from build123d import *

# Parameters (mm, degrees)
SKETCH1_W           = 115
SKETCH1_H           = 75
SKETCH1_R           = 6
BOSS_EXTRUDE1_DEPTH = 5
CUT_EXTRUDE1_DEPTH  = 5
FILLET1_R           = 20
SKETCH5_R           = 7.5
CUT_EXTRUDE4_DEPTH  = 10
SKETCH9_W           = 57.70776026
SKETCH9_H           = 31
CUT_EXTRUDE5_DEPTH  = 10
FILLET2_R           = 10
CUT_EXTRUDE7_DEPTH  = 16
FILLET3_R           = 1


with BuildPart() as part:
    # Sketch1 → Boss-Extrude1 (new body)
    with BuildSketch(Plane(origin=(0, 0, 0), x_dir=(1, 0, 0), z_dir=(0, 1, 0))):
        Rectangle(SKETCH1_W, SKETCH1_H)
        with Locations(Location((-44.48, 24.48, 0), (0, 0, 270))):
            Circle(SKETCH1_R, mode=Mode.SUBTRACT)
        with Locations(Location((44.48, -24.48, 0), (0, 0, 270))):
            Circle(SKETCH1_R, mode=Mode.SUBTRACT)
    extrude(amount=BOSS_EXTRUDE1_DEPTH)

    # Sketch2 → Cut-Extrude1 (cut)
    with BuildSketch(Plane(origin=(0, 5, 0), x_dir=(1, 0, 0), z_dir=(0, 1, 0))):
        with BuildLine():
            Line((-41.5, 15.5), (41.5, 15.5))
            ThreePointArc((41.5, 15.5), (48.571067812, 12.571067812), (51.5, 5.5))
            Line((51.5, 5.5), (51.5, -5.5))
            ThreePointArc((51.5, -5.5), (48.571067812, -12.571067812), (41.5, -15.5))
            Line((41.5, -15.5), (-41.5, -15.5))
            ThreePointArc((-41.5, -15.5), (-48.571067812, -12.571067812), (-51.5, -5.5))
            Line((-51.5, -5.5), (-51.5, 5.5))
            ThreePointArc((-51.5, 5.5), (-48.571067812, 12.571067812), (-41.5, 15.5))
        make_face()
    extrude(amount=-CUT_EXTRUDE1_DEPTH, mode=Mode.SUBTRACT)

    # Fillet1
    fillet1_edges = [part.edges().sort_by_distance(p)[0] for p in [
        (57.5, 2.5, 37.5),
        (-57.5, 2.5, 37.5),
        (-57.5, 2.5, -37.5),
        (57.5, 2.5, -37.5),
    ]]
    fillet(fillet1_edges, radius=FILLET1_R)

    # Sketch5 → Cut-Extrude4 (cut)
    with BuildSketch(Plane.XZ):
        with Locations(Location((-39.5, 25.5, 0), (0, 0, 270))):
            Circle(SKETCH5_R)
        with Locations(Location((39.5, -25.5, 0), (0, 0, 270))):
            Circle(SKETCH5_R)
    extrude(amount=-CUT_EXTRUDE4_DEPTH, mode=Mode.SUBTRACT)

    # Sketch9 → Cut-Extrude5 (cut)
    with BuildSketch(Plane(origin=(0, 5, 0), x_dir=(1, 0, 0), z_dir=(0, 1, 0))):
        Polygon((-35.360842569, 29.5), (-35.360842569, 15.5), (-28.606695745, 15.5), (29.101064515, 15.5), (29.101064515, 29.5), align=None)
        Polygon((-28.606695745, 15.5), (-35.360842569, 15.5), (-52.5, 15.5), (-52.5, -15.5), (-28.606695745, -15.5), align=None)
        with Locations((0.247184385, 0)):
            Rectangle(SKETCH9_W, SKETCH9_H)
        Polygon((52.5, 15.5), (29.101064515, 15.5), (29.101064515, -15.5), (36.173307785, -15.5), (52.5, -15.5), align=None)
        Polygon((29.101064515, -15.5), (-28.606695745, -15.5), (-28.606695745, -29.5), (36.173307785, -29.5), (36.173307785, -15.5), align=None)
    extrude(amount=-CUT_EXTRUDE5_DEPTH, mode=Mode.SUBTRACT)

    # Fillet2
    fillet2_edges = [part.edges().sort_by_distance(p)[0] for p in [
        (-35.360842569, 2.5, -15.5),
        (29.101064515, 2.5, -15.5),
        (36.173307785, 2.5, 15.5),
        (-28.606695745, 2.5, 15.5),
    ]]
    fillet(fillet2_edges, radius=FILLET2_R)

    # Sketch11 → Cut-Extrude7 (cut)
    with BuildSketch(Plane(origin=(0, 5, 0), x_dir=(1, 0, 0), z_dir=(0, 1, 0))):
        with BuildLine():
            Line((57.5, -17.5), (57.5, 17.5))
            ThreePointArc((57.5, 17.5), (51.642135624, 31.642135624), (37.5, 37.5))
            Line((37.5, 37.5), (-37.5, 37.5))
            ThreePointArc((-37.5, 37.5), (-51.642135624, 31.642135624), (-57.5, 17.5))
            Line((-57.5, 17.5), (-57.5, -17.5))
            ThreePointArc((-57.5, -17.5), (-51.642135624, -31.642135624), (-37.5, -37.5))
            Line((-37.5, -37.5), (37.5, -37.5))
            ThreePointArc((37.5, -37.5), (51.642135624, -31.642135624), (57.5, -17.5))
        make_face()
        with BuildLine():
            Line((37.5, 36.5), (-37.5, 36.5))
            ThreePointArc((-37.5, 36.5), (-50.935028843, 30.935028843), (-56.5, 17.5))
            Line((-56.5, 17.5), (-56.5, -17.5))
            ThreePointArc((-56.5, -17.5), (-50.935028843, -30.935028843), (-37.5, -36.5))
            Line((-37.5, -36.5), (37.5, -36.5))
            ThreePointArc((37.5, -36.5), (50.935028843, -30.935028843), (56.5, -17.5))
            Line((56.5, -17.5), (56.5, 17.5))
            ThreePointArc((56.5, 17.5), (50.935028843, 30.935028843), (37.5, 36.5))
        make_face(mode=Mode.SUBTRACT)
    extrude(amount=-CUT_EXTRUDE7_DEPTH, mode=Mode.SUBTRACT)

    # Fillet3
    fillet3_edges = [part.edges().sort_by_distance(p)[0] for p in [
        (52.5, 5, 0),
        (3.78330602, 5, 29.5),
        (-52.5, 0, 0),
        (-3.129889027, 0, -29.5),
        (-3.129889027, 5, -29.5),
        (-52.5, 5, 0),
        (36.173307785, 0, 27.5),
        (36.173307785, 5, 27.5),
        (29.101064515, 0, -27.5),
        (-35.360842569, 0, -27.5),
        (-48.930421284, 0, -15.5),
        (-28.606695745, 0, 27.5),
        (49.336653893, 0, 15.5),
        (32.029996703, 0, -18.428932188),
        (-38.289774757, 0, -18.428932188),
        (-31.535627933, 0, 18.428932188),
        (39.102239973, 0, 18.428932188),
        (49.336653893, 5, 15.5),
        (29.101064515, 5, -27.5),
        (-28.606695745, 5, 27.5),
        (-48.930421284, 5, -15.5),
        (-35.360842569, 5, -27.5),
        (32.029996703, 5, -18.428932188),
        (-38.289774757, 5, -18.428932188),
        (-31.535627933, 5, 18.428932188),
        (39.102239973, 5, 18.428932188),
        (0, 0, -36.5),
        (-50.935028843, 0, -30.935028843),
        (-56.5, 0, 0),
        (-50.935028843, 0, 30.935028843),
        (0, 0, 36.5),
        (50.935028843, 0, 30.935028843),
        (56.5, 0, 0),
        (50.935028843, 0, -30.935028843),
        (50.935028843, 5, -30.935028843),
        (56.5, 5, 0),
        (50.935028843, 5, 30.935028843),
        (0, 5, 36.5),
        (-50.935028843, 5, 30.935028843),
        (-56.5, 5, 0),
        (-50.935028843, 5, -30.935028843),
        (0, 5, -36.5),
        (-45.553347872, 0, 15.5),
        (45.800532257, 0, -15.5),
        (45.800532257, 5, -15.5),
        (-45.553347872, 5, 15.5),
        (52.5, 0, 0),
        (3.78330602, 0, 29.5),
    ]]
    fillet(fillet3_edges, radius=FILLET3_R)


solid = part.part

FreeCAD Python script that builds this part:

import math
import FreeCAD as App
import Part
import Sketcher

V = App.Vector
Q = App.Units.Quantity


def edges_at(feature, points):
    """Names of the edges that pass closest to the given points."""
    edges = feature.Shape.Edges
    near = lambda p: min(range(len(edges)), key=lambda i: edges[i].distToShape(Part.Vertex(*p))[0])
    return sorted({f"Edge{near(p) + 1}" for p in points})

doc = App.newDocument("Part")
body = doc.addObject("PartDesign::Body", "Body")

# Sketch on XZ plane
sketch1 = body.newObject("Sketcher::SketchObject", "Sketch")
sketch1.AttachmentSupport = (doc.getObject("XZ_Plane"), [""])
sketch1.MapMode = "FlatFace"
sketch1.addGeometry([
    Part.LineSegment(V(-58, -38, 0), V(-58, 38, 0)),  # 0
    Part.LineSegment(V(-58, 38, 0), V(58, 38, 0)),  # 1
    Part.LineSegment(V(58, 38, 0), V(58, -38, 0)),  # 2
    Part.LineSegment(V(58, -38, 0), V(-58, -38, 0)),  # 3
    Part.Circle(V(44, 24, 0), V(0, 0, 1), 6),  # 4
    Part.Circle(V(-44, -24, 0), V(0, 0, 1), 6),  # 5
], False)
sketch1.addConstraint([
    Sketcher.Constraint("Coincident", 0, 2, 1, 1),
    Sketcher.Constraint("Coincident", 1, 2, 2, 1),
    Sketcher.Constraint("Coincident", 2, 2, 3, 1),
    Sketcher.Constraint("Coincident", 3, 2, 0, 1),
    Sketcher.Constraint("Vertical", 0),
    Sketcher.Constraint("Horizontal", 1),
    Sketcher.Constraint("Vertical", 2),
    Sketcher.Constraint("Horizontal", 3),
    Sketcher.Constraint("Equal", 4, 5),
    Sketcher.Constraint("Symmetric", 4, 3, 5, 3, -1, 1),
    Sketcher.Constraint("Symmetric", 0, 2, 2, 2, -1, 1),
    Sketcher.Constraint("Diameter", 4, Q("12 mm")),
    Sketcher.Constraint("DistanceX", 1, 1, 1, 2, Q("115 mm")),
    Sketcher.Constraint("DistanceY", 0, 1, 0, 2, Q("75 mm")),
    Sketcher.Constraint("DistanceX", -1, 1, 4, 3, Q("44.48 mm")),
    Sketcher.Constraint("DistanceY", -1, 1, 4, 3, Q("24.48 mm")),
])
pad1 = body.newObject("PartDesign::Pad", "Pad")
pad1.Profile = sketch1
pad1.Length = 5
pad1.Reversed = True

# Sketch on XZ plane
sketch2 = body.newObject("Sketcher::SketchObject", "Sketch001")
sketch2.AttachmentSupport = (doc.getObject("XZ_Plane"), [""])
sketch2.MapMode = "FlatFace"
sketch2.AttachmentOffset = App.Placement(V(0, 0, -5), App.Rotation())
sketch2.addGeometry([
    Part.LineSegment(V(42, -16, 0), V(-42, -16, 0)),  # 0
    Part.ArcOfCircle(Part.Circle(V(-42, -6, 0), V(0, 0, 1), 10), math.radians(180), math.radians(270)),  # 1
    Part.LineSegment(V(-52, -6, 0), V(-52, 6, 0)),  # 2
    Part.ArcOfCircle(Part.Circle(V(-42, 6, 0), V(0, 0, 1), 10), math.radians(90), math.radians(180)),  # 3
    Part.LineSegment(V(-42, 16, 0), V(42, 16, 0)),  # 4
    Part.ArcOfCircle(Part.Circle(V(42, 6, 0), V(0, 0, 1), 10), math.radians(0), math.radians(90)),  # 5
    Part.LineSegment(V(52, 6, 0), V(52, -6, 0)),  # 6
    Part.ArcOfCircle(Part.Circle(V(42, -6, 0), V(0, 0, 1), 10), math.radians(-90), math.radians(0)),  # 7
], False)
sketch2.addConstraint([
    Sketcher.Constraint("Tangent", 0, 2, 1, 2),
    Sketcher.Constraint("Tangent", 1, 1, 2, 1),
    Sketcher.Constraint("Tangent", 2, 2, 3, 2),
    Sketcher.Constraint("Tangent", 3, 1, 4, 1),
    Sketcher.Constraint("Tangent", 4, 2, 5, 2),
    Sketcher.Constraint("Tangent", 5, 1, 6, 1),
    Sketcher.Constraint("Tangent", 6, 2, 7, 2),
    Sketcher.Constraint("Tangent", 7, 1, 0, 1),
    Sketcher.Constraint("Horizontal", 0),
    Sketcher.Constraint("Vertical", 2),
    Sketcher.Constraint("Horizontal", 4),
    Sketcher.Constraint("Vertical", 6),
    Sketcher.Constraint("Equal", 1, 3),
    Sketcher.Constraint("Equal", 3, 5),
    Sketcher.Constraint("Equal", 5, 7),
    Sketcher.Constraint("Symmetric", 1, 3, 5, 3, -1, 1),
    Sketcher.Constraint("Radius", 1, Q("10 mm")),
    Sketcher.Constraint("DistanceX", 0, 2, 0, 1, Q("83 mm")),
    Sketcher.Constraint("DistanceY", 2, 1, 2, 2, Q("11 mm")),
])
pocket1 = body.newObject("PartDesign::Pocket", "Pocket")
pocket1.Profile = sketch2
pocket1.Length = 5
pocket1.Reversed = True
doc.recompute()

fillet = body.newObject("PartDesign::Fillet", "Fillet")
fillet.Base = (pocket1, edges_at(pocket1, [
    (57.5, 2.5, 37.5),
    (-57.5, 2.5, 37.5),
    (-57.5, 2.5, -37.5),
    (57.5, 2.5, -37.5),
]))
fillet.Radius = 20

# Sketch on XZ plane
sketch3 = body.newObject("Sketcher::SketchObject", "Sketch002")
sketch3.AttachmentSupport = (doc.getObject("XZ_Plane"), [""])
sketch3.MapMode = "FlatFace"
sketch3.addGeometry([
    Part.Circle(V(-40, 26, 0), V(0, 0, 1), 8),
    Part.Circle(V(40, -26, 0), V(0, 0, 1), 8),
], False)
sketch3.addConstraint([
    Sketcher.Constraint("Equal", 0, 1),
    Sketcher.Constraint("Symmetric", 0, 3, 1, 3, -1, 1),
    Sketcher.Constraint("Diameter", 0, Q("15 mm")),
    Sketcher.Constraint("DistanceX", 0, 3, 1, 3, Q("79 mm")),
    Sketcher.Constraint("DistanceY", 1, 3, 0, 3, Q("51 mm")),
])
pocket2 = body.newObject("PartDesign::Pocket", "Pocket001")
pocket2.Profile = sketch3
pocket2.Length = 10

# Sketch on XZ plane
sketch4 = body.newObject("Sketcher::SketchObject", "Sketch003")
sketch4.AttachmentSupport = (doc.getObject("XZ_Plane"), [""])
sketch4.MapMode = "FlatFace"
sketch4.AttachmentOffset = App.Placement(V(0, 0, -5), App.Rotation())
sketch4.addGeometry([
    Part.LineSegment(V(-35, -30, 0), V(-35, -16, 0)),  # 0
    Part.LineSegment(V(-35, -16, 0), V(-52, -16, 0)),  # 1
    Part.LineSegment(V(-52, -16, 0), V(-52, 16, 0)),  # 2
    Part.LineSegment(V(-52, 16, 0), V(-29, 16, 0)),  # 3
    Part.LineSegment(V(-29, 16, 0), V(-29, 30, 0)),  # 4
    Part.LineSegment(V(-29, 30, 0), V(36, 30, 0)),  # 5
    Part.LineSegment(V(36, 30, 0), V(36, 16, 0)),  # 6
    Part.LineSegment(V(36, 16, 0), V(52, 16, 0)),  # 7
    Part.LineSegment(V(52, 16, 0), V(52, -16, 0)),  # 8
    Part.LineSegment(V(52, -16, 0), V(29, -16, 0)),  # 9
    Part.LineSegment(V(29, -16, 0), V(29, -30, 0)),  # 10
    Part.LineSegment(V(29, -30, 0), V(-35, -30, 0)),  # 11
], False)
sketch4.addConstraint([
    Sketcher.Constraint("Coincident", 0, 2, 1, 1),
    Sketcher.Constraint("Coincident", 1, 2, 2, 1),
    Sketcher.Constraint("Coincident", 2, 2, 3, 1),
    Sketcher.Constraint("Coincident", 3, 2, 4, 1),
    Sketcher.Constraint("Coincident", 4, 2, 5, 1),
    Sketcher.Constraint("Coincident", 5, 2, 6, 1),
    Sketcher.Constraint("Coincident", 6, 2, 7, 1),
    Sketcher.Constraint("Coincident", 7, 2, 8, 1),
    Sketcher.Constraint("Coincident", 8, 2, 9, 1),
    Sketcher.Constraint("Coincident", 9, 2, 10, 1),
    Sketcher.Constraint("Coincident", 10, 2, 11, 1),
    Sketcher.Constraint("Coincident", 11, 2, 0, 1),
    Sketcher.Constraint("Vertical", 0),
    Sketcher.Constraint("Horizontal", 1),
    Sketcher.Constraint("Vertical", 2),
    Sketcher.Constraint("Horizontal", 3),
    Sketcher.Constraint("Vertical", 4),
    Sketcher.Constraint("Horizontal", 5),
    Sketcher.Constraint("Vertical", 6),
    Sketcher.Constraint("Horizontal", 7),
    Sketcher.Constraint("Vertical", 8),
    Sketcher.Constraint("Horizontal", 9),
    Sketcher.Constraint("Vertical", 10),
    Sketcher.Constraint("Horizontal", 11),
    Sketcher.Constraint("Symmetric", 1, 2, 7, 2, -1, 1),
    Sketcher.Constraint("Horizontal", 3, 2, 6, 2),
    Sketcher.Constraint("Horizontal", 1, 2, 8, 2),
    Sketcher.Constraint("Equal", 0, 4),
    Sketcher.Constraint("DistanceY", 0, 1, 0, 2, Q("14 mm")),
    Sketcher.Constraint("DistanceY", 2, 1, 2, 2, Q("31 mm")),
    Sketcher.Constraint("DistanceX", 1, 2, -1, 1, Q("52.5 mm")),
    Sketcher.Constraint("DistanceX", 1, 2, 1, 1, Q("17.139157 mm")),
    Sketcher.Constraint("DistanceX", 3, 1, 3, 2, Q("23.893304 mm")),
    Sketcher.Constraint("DistanceX", 5, 1, 5, 2, Q("64.780004 mm")),
    Sketcher.Constraint("DistanceX", 9, 2, 9, 1, Q("23.398935 mm")),
])
pocket3 = body.newObject("PartDesign::Pocket", "Pocket002")
pocket3.Profile = sketch4
pocket3.Length = 10
pocket3.Reversed = True
doc.recompute()

fillet2 = body.newObject("PartDesign::Fillet", "Fillet001")
fillet2.Base = (pocket3, edges_at(pocket3, [
    (-35.361, 2.5, -15.5),
    (29.101, 2.5, -15.5),
    (36.173, 2.5, 15.5),
    (-28.607, 2.5, 15.5),
]))
fillet2.Radius = 10

# Sketch on XZ plane
sketch5 = body.newObject("Sketcher::SketchObject", "Sketch004")
sketch5.AttachmentSupport = (doc.getObject("XZ_Plane"), [""])
sketch5.MapMode = "FlatFace"
sketch5.AttachmentOffset = App.Placement(V(0, 0, -5), App.Rotation())
sketch5.addGeometry([
    Part.LineSegment(V(58, 18, 0), V(58, -18, 0)),  # 0
    Part.ArcOfCircle(Part.Circle(V(38, -18, 0), V(0, 0, 1), 20), math.radians(-90), math.radians(0)),  # 1
    Part.LineSegment(V(38, -38, 0), V(-38, -38, 0)),  # 2
    Part.ArcOfCircle(Part.Circle(V(-38, -18, 0), V(0, 0, 1), 20), math.radians(180), math.radians(270)),  # 3
    Part.LineSegment(V(-58, -18, 0), V(-58, 18, 0)),  # 4
    Part.ArcOfCircle(Part.Circle(V(-38, 18, 0), V(0, 0, 1), 20), math.radians(90), math.radians(180)),  # 5
    Part.LineSegment(V(-38, 38, 0), V(38, 38, 0)),  # 6
    Part.ArcOfCircle(Part.Circle(V(38, 18, 0), V(0, 0, 1), 20), math.radians(0), math.radians(90)),  # 7
    Part.LineSegment(V(-38, -36, 0), V(38, -36, 0)),  # 8
    Part.ArcOfCircle(Part.Circle(V(38, -18, 0), V(0, 0, 1), 19), math.radians(-90), math.radians(0)),  # 9
    Part.LineSegment(V(56, -18, 0), V(56, 18, 0)),  # 10
    Part.ArcOfCircle(Part.Circle(V(38, 18, 0), V(0, 0, 1), 19), math.radians(0), math.radians(90)),  # 11
    Part.LineSegment(V(38, 36, 0), V(-38, 36, 0)),  # 12
    Part.ArcOfCircle(Part.Circle(V(-38, 18, 0), V(0, 0, 1), 19), math.radians(90), math.radians(180)),  # 13
    Part.LineSegment(V(-56, 18, 0), V(-56, -18, 0)),  # 14
    Part.ArcOfCircle(Part.Circle(V(-38, -18, 0), V(0, 0, 1), 19), math.radians(180), math.radians(270)),  # 15
], False)
sketch5.addConstraint([
    Sketcher.Constraint("Tangent", 0, 2, 1, 2),
    Sketcher.Constraint("Tangent", 1, 1, 2, 1),
    Sketcher.Constraint("Tangent", 2, 2, 3, 2),
    Sketcher.Constraint("Tangent", 3, 1, 4, 1),
    Sketcher.Constraint("Tangent", 4, 2, 5, 2),
    Sketcher.Constraint("Tangent", 5, 1, 6, 1),
    Sketcher.Constraint("Tangent", 6, 2, 7, 2),
    Sketcher.Constraint("Tangent", 7, 1, 0, 1),
    Sketcher.Constraint("Tangent", 8, 2, 9, 1),
    Sketcher.Constraint("Tangent", 9, 2, 10, 1),
    Sketcher.Constraint("Tangent", 10, 2, 11, 1),
    Sketcher.Constraint("Tangent", 11, 2, 12, 1),
    Sketcher.Constraint("Tangent", 12, 2, 13, 1),
    Sketcher.Constraint("Tangent", 13, 2, 14, 1),
    Sketcher.Constraint("Tangent", 14, 2, 15, 1),
    Sketcher.Constraint("Tangent", 15, 2, 8, 1),
    Sketcher.Constraint("Vertical", 0),
    Sketcher.Constraint("Horizontal", 2),
    Sketcher.Constraint("Vertical", 4),
    Sketcher.Constraint("Horizontal", 6),
    Sketcher.Constraint("Horizontal", 8),
    Sketcher.Constraint("Vertical", 10),
    Sketcher.Constraint("Horizontal", 12),
    Sketcher.Constraint("Vertical", 14),
    Sketcher.Constraint("Coincident", 9, 3, 1, 3),
    Sketcher.Constraint("Coincident", 11, 3, 7, 3),
    Sketcher.Constraint("Coincident", 13, 3, 5, 3),
    Sketcher.Constraint("Equal", 1, 3),
    Sketcher.Constraint("Equal", 3, 5),
    Sketcher.Constraint("Equal", 5, 7),
    Sketcher.Constraint("Equal", 13, 15),
    Sketcher.Constraint("Symmetric", 1, 3, 5, 3, -1, 1),
    Sketcher.Constraint("Radius", 1, Q("20 mm")),
    Sketcher.Constraint("Radius", 9, Q("19 mm")),
    Sketcher.Constraint("DistanceX", 2, 2, 2, 1, Q("75 mm")),
    Sketcher.Constraint("DistanceY", 0, 2, 0, 1, Q("35 mm")),
])
pocket4 = body.newObject("PartDesign::Pocket", "Pocket003")
pocket4.Profile = sketch5
pocket4.Length = 16
pocket4.Reversed = True
doc.recompute()

fillet3 = body.newObject("PartDesign::Fillet", "Fillet002")
fillet3.Base = (pocket4, edges_at(pocket4, [
    (52.5, 5, 0),
    (3.783, 5, 29.5),
    (-52.5, 0, 0),
    (-3.13, 0, -29.5),
    (-3.13, 5, -29.5),
    (-52.5, 5, 0),
    (36.173, 0, 27.5),
    (36.173, 5, 27.5),
    (29.101, 0, -27.5),
    (-35.361, 0, -27.5),
    (-48.93, 0, -15.5),
    (-28.607, 0, 27.5),
    (49.337, 0, 15.5),
    (32.03, 0, -18.429),
    (-38.29, 0, -18.429),
    (-31.536, 0, 18.429),
    (39.102, 0, 18.429),
    (49.337, 5, 15.5),
    (29.101, 5, -27.5),
    (-28.607, 5, 27.5),
    (-48.93, 5, -15.5),
    (-35.361, 5, -27.5),
    (32.03, 5, -18.429),
    (-38.29, 5, -18.429),
    (-31.536, 5, 18.429),
    (39.102, 5, 18.429),
    (0, 0, -36.5),
    (-50.935, 0, -30.935),
    (-56.5, 0, 0),
    (-50.935, 0, 30.935),
    (0, 0, 36.5),
    (50.935, 0, 30.935),
    (56.5, 0, 0),
    (50.935, 0, -30.935),
    (50.935, 5, -30.935),
    (56.5, 5, 0),
    (50.935, 5, 30.935),
    (0, 5, 36.5),
    (-50.935, 5, 30.935),
    (-56.5, 5, 0),
    (-50.935, 5, -30.935),
    (0, 5, -36.5),
    (-45.553, 0, 15.5),
    (45.801, 0, -15.5),
    (45.801, 5, -15.5),
    (-45.553, 5, 15.5),
    (52.5, 0, 0),
    (3.783, 0, 29.5),
]))
fillet3.Radius = 1

doc.recompute()
